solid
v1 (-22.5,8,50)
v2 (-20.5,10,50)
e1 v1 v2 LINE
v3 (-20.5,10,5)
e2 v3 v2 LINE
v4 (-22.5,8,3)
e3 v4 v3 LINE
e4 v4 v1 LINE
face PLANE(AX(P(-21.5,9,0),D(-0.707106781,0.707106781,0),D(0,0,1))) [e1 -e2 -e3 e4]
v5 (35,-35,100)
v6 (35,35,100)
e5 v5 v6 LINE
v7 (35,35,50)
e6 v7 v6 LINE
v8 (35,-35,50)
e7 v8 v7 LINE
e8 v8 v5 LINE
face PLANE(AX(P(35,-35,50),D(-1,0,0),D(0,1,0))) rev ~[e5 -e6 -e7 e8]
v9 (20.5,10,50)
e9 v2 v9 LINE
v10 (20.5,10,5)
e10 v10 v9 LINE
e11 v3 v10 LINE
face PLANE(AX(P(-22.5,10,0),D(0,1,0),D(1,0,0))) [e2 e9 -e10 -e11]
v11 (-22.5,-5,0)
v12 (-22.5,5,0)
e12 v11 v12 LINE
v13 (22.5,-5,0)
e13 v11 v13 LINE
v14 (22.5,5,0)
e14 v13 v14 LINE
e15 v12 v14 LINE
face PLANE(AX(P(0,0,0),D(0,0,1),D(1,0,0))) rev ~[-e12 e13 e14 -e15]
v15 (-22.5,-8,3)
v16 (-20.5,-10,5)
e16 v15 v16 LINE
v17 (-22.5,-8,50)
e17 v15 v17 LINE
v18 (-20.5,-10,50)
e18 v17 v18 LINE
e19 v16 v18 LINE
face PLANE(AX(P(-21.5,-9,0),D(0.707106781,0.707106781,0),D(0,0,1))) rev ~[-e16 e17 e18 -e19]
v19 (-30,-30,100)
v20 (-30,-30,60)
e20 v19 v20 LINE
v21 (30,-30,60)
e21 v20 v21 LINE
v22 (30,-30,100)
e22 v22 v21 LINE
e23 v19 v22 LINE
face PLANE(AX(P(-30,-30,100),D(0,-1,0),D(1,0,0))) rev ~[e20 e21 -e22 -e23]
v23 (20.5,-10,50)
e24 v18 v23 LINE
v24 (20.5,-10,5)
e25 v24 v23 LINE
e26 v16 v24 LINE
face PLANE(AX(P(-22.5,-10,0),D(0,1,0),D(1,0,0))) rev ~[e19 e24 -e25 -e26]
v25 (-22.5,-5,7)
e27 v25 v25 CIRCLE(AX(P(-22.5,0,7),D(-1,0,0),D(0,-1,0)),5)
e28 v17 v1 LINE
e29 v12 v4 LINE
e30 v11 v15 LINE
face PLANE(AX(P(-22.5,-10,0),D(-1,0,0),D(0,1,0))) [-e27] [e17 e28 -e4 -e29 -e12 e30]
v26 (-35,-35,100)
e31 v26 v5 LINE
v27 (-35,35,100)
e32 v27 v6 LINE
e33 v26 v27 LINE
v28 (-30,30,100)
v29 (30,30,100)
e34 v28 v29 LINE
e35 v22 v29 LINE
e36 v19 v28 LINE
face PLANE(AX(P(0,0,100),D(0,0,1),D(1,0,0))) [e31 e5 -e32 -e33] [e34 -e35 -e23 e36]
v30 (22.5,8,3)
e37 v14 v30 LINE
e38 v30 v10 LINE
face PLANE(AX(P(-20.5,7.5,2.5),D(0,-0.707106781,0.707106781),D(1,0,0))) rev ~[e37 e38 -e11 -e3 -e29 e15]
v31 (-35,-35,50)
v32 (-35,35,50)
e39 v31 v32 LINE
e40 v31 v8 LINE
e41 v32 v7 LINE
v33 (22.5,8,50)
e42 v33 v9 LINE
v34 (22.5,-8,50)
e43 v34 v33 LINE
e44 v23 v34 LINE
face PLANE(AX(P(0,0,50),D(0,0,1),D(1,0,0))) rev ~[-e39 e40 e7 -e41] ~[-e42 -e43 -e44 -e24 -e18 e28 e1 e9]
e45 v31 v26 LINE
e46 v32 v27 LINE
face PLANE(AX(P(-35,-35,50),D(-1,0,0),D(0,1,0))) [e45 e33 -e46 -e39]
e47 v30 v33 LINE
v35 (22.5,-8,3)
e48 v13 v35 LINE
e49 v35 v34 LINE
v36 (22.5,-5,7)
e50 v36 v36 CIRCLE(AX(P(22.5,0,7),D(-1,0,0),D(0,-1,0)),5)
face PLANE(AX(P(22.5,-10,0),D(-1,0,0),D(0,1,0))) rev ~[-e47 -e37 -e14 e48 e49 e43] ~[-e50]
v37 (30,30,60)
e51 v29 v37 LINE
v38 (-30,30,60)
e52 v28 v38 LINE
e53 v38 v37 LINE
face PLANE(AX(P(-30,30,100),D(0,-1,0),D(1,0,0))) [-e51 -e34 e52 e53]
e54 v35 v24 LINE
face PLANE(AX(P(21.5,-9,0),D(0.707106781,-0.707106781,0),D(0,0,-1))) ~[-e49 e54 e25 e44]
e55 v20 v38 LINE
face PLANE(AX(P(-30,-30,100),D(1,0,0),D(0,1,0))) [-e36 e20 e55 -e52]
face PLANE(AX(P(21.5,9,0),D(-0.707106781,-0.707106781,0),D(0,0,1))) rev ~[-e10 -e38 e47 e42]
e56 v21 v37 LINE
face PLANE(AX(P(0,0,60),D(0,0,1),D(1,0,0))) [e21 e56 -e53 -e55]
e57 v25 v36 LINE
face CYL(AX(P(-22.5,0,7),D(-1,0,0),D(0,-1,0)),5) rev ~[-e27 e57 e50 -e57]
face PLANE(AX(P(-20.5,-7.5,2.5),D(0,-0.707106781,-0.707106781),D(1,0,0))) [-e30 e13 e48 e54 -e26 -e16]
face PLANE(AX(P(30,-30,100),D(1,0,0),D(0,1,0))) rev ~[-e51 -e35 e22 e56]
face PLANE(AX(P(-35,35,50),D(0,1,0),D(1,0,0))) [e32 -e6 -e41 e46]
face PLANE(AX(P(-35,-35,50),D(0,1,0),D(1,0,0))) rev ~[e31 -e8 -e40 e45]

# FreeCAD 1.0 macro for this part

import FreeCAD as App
import Part
import Sketcher
from FreeCAD import Vector
Q = App.Units.Quantity


def edges_at(feature, points):
    """Names of the edges that pass closest to the given points."""
    edges = feature.Shape.Edges
    near = lambda p: min(range(len(edges)), key=lambda i: edges[i].distToShape(Part.Vertex(*p))[0])
    return sorted({f"Edge{near(p) + 1}" for p in points})


def add_polygon(sketch, points):
    """Adds a closed chain of lines whose ends are joined by coincident constraints."""
    first, n = sketch.GeometryCount, len(points)
    for a, b in zip(points, points[1:] + points[:1]):
        sketch.addGeometry(Part.LineSegment(App.Vector(*a, 0), App.Vector(*b, 0)), False)
    for i in range(n):
        sketch.addConstraint(Sketcher.Constraint("Coincident", first + i, 2, first + (i + 1) % n, 1))

doc = App.newDocument("Part")
body = doc.addObject("PartDesign::Body", "Body")

# Sketch on XY plane
sketch1 = body.newObject("Sketcher::SketchObject", "Sketch")
sketch1.AttachmentSupport = (doc.getObject("XY_Plane"), [""])
sketch1.MapMode = "FlatFace"
add_polygon(sketch1, [(-22, 10), (-22, -10), (22, -10), (22, 10)])  # lines 0-3
sketch1.addConstraint(Sketcher.Constraint("Vertical", 0))
sketch1.addConstraint(Sketcher.Constraint("Horizontal", 1))
sketch1.addConstraint(Sketcher.Constraint("Vertical", 2))
sketch1.addConstraint(Sketcher.Constraint("Horizontal", 3))
sketch1.addConstraint(Sketcher.Constraint("Symmetric", 0, 2, 2, 2, -1, 1))
sketch1.addConstraint(Sketcher.Constraint("DistanceX", 1, 1, 1, 2, Q("45 mm")))
sketch1.addConstraint(Sketcher.Constraint("DistanceY", 0, 2, 0, 1, Q("20 mm")))
pad1 = body.newObject("PartDesign::Pad", "Pad")
pad1.Profile = sketch1
pad1.Length = 50
doc.recompute()

chamfer = body.newObject("PartDesign::Chamfer", "Chamfer")
chamfer.Base = (pad1, edges_at(pad1, [
    (-22.5, -10, 25),
    (-22.5, 10, 25),
    (22.5, -10, 25),
    (22.5, 10, 25),
]))
chamfer.Size = 2
doc.recompute()

chamfer2 = body.newObject("PartDesign::Chamfer", "Chamfer001")
chamfer2.Base = (chamfer, edges_at(chamfer, [(0, 10, 0), (0, -10, 0)]))
chamfer2.Size = 5

# Sketch on YZ plane
sketch2 = body.newObject("Sketcher::SketchObject", "Sketch001")
sketch2.AttachmentSupport = (doc.getObject("YZ_Plane"), [""])
sketch2.MapMode = "FlatFace"
sketch2.AttachmentOffset = App.Placement(Vector(0, 0, -22.5), App.Rotation())
sketch2.addGeometry(Part.Circle(Vector(0, 7, 0), Vector(0, 0, 1), 5), False)
sketch2.addConstraint(Sketcher.Constraint("PointOnObject", 0, 3, -2))
sketch2.addConstraint(Sketcher.Constraint("Diameter", 0, Q("10 mm")))
sketch2.addConstraint(Sketcher.Constraint("DistanceY", -1, 1, 0, 3, Q("7 mm")))
pocket1 = body.newObject("PartDesign::Pocket", "Pocket")
pocket1.Profile = sketch2
pocket1.Type = "ThroughAll"
pocket1.Reversed = True

# Sketch on XY plane
sketch3 = body.newObject("Sketcher::SketchObject", "Sketch002")
sketch3.AttachmentSupport = (doc.getObject("XY_Plane"), [""])
sketch3.MapMode = "FlatFace"
sketch3.AttachmentOffset = App.Placement(Vector(0, 0, 50), App.Rotation())
add_polygon(sketch3, [(-35, 35), (-35, -35), (35, -35), (35, 35)])  # lines 0-3
sketch3.addConstraint(Sketcher.Constraint("Vertical", 0))
sketch3.addConstraint(Sketcher.Constraint("Horizontal", 1))
sketch3.addConstraint(Sketcher.Constraint("Vertical", 2))
sketch3.addConstraint(Sketcher.Constraint("Horizontal", 3))
sketch3.addConstraint(Sketcher.Constraint("Symmetric", 0, 2, 2, 2, -1, 1))
sketch3.addConstraint(Sketcher.Constraint("Equal", 3, 0))
sketch3.addConstraint(Sketcher.Constraint("DistanceX", 1, 1, 1, 2, Q("70 mm")))
pad2 = body.newObject("PartDesign::Pad", "Pad001")
pad2.Profile = sketch3
pad2.Length = 50

# Sketch on XY plane
sketch4 = body.newObject("Sketcher::SketchObject", "Sketch003")
sketch4.AttachmentSupport = (doc.getObject("XY_Plane"), [""])
sketch4.MapMode = "FlatFace"
sketch4.AttachmentOffset = App.Placement(Vector(0, 0, 100), App.Rotation())
add_polygon(sketch4, [(-30, 30), (-30, -30), (30, -30), (30, 30)])  # lines 0-3
sketch4.addConstraint(Sketcher.Constraint("Vertical", 0))
sketch4.addConstraint(Sketcher.Constraint("Horizontal", 1))
sketch4.addConstraint(Sketcher.Constraint("Vertical", 2))
sketch4.addConstraint(Sketcher.Constraint("Horizontal", 3))
sketch4.addConstraint(Sketcher.Constraint("Symmetric", 0, 2, 2, 2, -1, 1))
sketch4.addConstraint(Sketcher.Constraint("Equal", 3, 0))
sketch4.addConstraint(Sketcher.Constraint("DistanceX", 1, 1, 1, 2, Q("60 mm")))
pocket2 = body.newObject("PartDesign::Pocket", "Pocket001")
pocket2.Profile = sketch4
pocket2.Length = 40

doc.recompute()
